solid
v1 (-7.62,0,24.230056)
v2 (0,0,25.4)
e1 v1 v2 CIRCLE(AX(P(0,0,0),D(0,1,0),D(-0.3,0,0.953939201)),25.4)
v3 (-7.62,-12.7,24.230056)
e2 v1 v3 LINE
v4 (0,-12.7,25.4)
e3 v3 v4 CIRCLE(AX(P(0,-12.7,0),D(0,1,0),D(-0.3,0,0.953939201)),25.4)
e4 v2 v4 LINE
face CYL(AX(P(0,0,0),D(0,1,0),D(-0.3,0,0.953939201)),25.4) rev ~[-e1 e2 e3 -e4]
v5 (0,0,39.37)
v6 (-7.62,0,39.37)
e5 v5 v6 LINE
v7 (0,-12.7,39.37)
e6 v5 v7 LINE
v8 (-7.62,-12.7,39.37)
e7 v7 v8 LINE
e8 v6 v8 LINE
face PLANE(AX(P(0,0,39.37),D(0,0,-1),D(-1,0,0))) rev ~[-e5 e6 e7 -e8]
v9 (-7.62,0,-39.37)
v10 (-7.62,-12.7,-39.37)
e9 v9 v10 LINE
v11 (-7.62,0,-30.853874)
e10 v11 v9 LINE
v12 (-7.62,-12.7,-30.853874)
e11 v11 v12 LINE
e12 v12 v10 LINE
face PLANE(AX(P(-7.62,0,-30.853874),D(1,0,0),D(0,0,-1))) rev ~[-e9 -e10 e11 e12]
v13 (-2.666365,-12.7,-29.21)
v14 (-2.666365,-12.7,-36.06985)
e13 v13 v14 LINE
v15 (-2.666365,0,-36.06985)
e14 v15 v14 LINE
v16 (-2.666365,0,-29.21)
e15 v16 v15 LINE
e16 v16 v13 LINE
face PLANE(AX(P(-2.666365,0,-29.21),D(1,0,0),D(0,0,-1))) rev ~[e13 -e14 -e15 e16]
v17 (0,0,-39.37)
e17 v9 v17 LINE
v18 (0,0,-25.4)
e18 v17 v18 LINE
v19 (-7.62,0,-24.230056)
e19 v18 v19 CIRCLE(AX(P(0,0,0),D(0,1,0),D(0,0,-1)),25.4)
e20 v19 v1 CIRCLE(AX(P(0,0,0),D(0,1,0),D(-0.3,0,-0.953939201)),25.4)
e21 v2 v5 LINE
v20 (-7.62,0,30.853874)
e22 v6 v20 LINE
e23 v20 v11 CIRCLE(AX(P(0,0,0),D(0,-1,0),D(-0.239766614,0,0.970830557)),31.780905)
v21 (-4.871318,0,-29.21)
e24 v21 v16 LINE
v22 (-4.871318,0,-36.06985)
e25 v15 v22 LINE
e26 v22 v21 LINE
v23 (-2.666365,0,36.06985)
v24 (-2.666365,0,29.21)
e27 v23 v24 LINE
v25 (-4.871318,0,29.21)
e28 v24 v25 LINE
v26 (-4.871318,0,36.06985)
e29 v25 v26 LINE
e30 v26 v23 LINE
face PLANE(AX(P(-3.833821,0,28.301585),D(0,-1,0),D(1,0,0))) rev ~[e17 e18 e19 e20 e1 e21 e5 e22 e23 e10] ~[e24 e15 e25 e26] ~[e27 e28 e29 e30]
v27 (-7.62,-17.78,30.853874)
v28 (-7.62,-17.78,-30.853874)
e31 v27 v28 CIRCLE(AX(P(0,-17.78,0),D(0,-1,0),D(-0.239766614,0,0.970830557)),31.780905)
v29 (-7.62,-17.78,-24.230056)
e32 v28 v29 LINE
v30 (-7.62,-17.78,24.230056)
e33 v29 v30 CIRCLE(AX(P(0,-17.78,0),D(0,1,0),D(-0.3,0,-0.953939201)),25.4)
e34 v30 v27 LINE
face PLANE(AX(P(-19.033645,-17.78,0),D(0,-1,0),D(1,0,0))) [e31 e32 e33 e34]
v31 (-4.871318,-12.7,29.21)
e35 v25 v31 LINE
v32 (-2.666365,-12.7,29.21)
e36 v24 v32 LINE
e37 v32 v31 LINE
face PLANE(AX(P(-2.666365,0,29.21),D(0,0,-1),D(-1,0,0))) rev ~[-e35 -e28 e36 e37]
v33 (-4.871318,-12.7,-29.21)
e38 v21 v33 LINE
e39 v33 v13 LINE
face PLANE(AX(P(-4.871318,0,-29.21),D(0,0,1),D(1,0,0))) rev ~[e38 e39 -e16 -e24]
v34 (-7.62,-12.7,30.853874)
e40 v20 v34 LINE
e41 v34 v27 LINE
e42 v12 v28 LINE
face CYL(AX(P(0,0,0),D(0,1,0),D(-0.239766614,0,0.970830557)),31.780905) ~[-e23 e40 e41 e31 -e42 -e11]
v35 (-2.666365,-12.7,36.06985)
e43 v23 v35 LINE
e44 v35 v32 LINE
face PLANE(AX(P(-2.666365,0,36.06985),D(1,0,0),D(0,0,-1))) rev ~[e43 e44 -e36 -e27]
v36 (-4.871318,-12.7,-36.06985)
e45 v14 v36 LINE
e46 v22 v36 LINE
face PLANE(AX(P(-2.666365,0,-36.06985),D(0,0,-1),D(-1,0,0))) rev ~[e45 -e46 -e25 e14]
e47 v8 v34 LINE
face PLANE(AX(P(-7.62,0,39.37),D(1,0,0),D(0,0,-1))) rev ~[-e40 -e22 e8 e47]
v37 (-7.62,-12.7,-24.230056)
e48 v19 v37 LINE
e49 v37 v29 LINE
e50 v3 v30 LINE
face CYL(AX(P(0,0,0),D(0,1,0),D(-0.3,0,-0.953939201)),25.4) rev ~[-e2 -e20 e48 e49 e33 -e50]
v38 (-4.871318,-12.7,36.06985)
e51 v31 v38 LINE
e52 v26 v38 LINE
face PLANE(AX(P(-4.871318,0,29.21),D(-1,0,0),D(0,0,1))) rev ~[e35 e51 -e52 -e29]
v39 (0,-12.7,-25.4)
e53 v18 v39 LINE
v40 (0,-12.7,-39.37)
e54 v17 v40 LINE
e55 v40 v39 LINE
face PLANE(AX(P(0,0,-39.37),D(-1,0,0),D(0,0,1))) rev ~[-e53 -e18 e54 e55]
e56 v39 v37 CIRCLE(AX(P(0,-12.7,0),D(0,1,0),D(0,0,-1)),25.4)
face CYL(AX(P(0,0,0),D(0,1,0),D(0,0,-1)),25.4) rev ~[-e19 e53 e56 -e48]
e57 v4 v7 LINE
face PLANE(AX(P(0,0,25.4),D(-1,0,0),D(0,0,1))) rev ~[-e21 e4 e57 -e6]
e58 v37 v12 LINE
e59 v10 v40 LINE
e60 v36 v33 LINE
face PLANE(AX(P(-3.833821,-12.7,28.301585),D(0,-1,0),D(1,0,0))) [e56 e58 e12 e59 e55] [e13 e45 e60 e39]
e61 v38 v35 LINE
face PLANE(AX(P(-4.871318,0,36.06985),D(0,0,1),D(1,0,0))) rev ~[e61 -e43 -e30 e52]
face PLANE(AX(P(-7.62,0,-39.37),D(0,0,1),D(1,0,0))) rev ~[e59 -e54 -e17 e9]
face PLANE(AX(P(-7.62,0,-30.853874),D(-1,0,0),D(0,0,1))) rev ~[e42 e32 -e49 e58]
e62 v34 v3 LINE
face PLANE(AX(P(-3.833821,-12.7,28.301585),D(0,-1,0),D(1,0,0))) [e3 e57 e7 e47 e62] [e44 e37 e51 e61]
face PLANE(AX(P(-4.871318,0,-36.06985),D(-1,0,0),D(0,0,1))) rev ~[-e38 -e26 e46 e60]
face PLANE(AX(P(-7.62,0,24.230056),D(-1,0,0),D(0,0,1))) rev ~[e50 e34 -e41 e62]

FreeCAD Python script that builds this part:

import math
import FreeCAD as App
import Part
import Sketcher
Q = App.Units.Quantity

doc = App.newDocument("Part")
body = doc.addObject("PartDesign::Body", "Body")

# Sketch on XZ plane
sketch1 = body.newObject("Sketcher::SketchObject", "Sketch")
sketch1.AttachmentSupport = (doc.getObject("XZ_Plane"), [""])
sketch1.MapMode = "FlatFace"
sketch1.addGeometry(Part.LineSegment(App.Vector(-7.6, 39.4, 0), App.Vector(-7.6, 30.9, 0)), False)
sketch1.addGeometry(Part.ArcOfCircle(Part.Circle(App.Vector(0, 0, 0), App.Vector(0, 0, 1), 31.8), math.radians(104), math.radians(256)), False)
sketch1.addGeometry(Part.LineSegment(App.Vector(-7.6, -30.9, 0), App.Vector(-7.6, -39.4, 0)), False)
sketch1.addGeometry(Part.LineSegment(App.Vector(-7.6, -39.4, 0), App.Vector(0, -39.4, 0)), False)
sketch1.addGeometry(Part.LineSegment(App.Vector(0, -39.4, 0), App.Vector(0, -25.4, 0)), False)
sketch1.addGeometry(Part.ArcOfCircle(Part.Circle(App.Vector(0, 0, 0), App.Vector(0, 0, 1), 25.4), math.radians(-107.46), math.radians(-90)), False)
sketch1.addGeometry(Part.ArcOfCircle(Part.Circle(App.Vector(0, 0, 0), App.Vector(0, 0, 1), 25.4), math.radians(107), math.radians(253)), False)
sketch1.addGeometry(Part.ArcOfCircle(Part.Circle(App.Vector(0, 0, 0), App.Vector(0, 0, 1), 25.4), math.radians(90), math.radians(107.46)), False)
sketch1.addGeometry(Part.LineSegment(App.Vector(0, 25.4, 0), App.Vector(0, 39.4, 0)), False)
sketch1.addGeometry(Part.LineSegment(App.Vector(0, 39.4, 0), App.Vector(-7.6, 39.4, 0)), False)
sketch1.addGeometry(Part.LineSegment(App.Vector(-2.7, 29.2, 0), App.Vector(-4.9, 29.2, 0)), False)
sketch1.addGeometry(Part.LineSegment(App.Vector(-4.9, 29.2, 0), App.Vector(-4.9, 36.1, 0)), False)
sketch1.addGeometry(Part.LineSegment(App.Vector(-4.9, 36.1, 0), App.Vector(-2.7, 36.1, 0)), False)
sketch1.addGeometry(Part.LineSegment(App.Vector(-2.7, 36.1, 0), App.Vector(-2.7, 29.2, 0)), False)
sketch1.addGeometry(Part.LineSegment(App.Vector(-2.7, -36.1, 0), App.Vector(-4.9, -36.1, 0)), False)
sketch1.addGeometry(Part.LineSegment(App.Vector(-4.9, -36.1, 0), App.Vector(-4.9, -29.2, 0)), False)
sketch1.addGeometry(Part.LineSegment(App.Vector(-4.9, -29.2, 0), App.Vector(-2.7, -29.2, 0)), False)
sketch1.addGeometry(Part.LineSegment(App.Vector(-2.7, -29.2, 0), App.Vector(-2.7, -36.1, 0)), False)
sketch1.addConstraint(Sketcher.Constraint("Coincident", 0, 2, 1, 1))
sketch1.addConstraint(Sketcher.Constraint("Coincident", 1, 2, 2, 1))
sketch1.addConstraint(Sketcher.Constraint("Coincident", 2, 2, 3, 1))
sketch1.addConstraint(Sketcher.Constraint("Coincident", 3, 2, 4, 1))
sketch1.addConstraint(Sketcher.Constraint("Coincident", 4, 2, 5, 2))
sketch1.addConstraint(Sketcher.Constraint("Tangent", 5, 1, 6, 2))
sketch1.addConstraint(Sketcher.Constraint("Tangent", 6, 1, 7, 2))
sketch1.addConstraint(Sketcher.Constraint("Coincident", 7, 1, 8, 1))
sketch1.addConstraint(Sketcher.Constraint("Coincident", 8, 2, 9, 1))
sketch1.addConstraint(Sketcher.Constraint("Coincident", 9, 2, 0, 1))
sketch1.addConstraint(Sketcher.Constraint("Coincident", 10, 2, 11, 1))
sketch1.addConstraint(Sketcher.Constraint("Coincident", 11, 2, 12, 1))
sketch1.addConstraint(Sketcher.Constraint("Coincident", 12, 2, 13, 1))
sketch1.addConstraint(Sketcher.Constraint("Coincident", 13, 2, 10, 1))
sketch1.addConstraint(Sketcher.Constraint("Coincident", 14, 2, 15, 1))
sketch1.addConstraint(Sketcher.Constraint("Coincident", 15, 2, 16, 1))
sketch1.addConstraint(Sketcher.Constraint("Coincident", 16, 2, 17, 1))
sketch1.addConstraint(Sketcher.Constraint("Coincident", 17, 2, 14, 1))
sketch1.addConstraint(Sketcher.Constraint("Vertical", 0))
sketch1.addConstraint(Sketcher.Constraint("Vertical", 2))
sketch1.addConstraint(Sketcher.Constraint("Horizontal", 3))
sketch1.addConstraint(Sketcher.Constraint("Vertical", 4))
sketch1.addConstraint(Sketcher.Constraint("Vertical", 8))
sketch1.addConstraint(Sketcher.Constraint("Horizontal", 9))
sketch1.addConstraint(Sketcher.Constraint("Horizontal", 10))
sketch1.addConstraint(Sketcher.Constraint("Vertical", 11))
sketch1.addConstraint(Sketcher.Constraint("Horizontal", 12))
sketch1.addConstraint(Sketcher.Constraint("Vertical", 13))
sketch1.addConstraint(Sketcher.Constraint("Horizontal", 14))
sketch1.addConstraint(Sketcher.Constraint("Vertical", 15))
sketch1.addConstraint(Sketcher.Constraint("Horizontal", 16))
sketch1.addConstraint(Sketcher.Constraint("Vertical", 17))
sketch1.addConstraint(Sketcher.Constraint("Coincident", 1, 3, -1, 1))
sketch1.addConstraint(Sketcher.Constraint("Coincident", 5, 3, -1, 1))
sketch1.addConstraint(Sketcher.Constraint("Coincident", 7, 3, -1, 1))
sketch1.addConstraint(Sketcher.Constraint("Symmetric", 3, 2, 8, 2, -1, 1))
sketch1.addConstraint(Sketcher.Constraint("Symmetric", 11, 2, 14, 2, -1))
sketch1.addConstraint(Sketcher.Constraint("Symmetric", 13, 2, 16, 2, -1))
sketch1.addConstraint(Sketcher.Constraint("PointOnObject", 3, 2, -2))
sketch1.addConstraint(Sketcher.Constraint("Vertical", 0, 2, 1, 2))
sketch1.addConstraint(Sketcher.Constraint("Vertical", 2, 2, 5, 1))
sketch1.addConstraint(Sketcher.Constraint("Vertical", 5, 1, 6, 1))
sketch1.addConstraint(Sketcher.Constraint("Radius", 5, Q("1 in")))
sketch1.addConstraint(Sketcher.Constraint("DistanceX", 3, 1, 3, 2, Q("0.3 in")))
sketch1.addConstraint(Sketcher.Constraint("DistanceY", 4, 1, 4, 2, Q("0.55 in")))
sketch1.addConstraint(Sketcher.Constraint("DistanceY", 10, 2, 9, 2, Q("0.4 in")))
sketch1.addConstraint(Sketcher.Constraint("Radius", 1, 31.780905))
sketch1.addConstraint(Sketcher.Constraint("DistanceY", 11, 1, 11, 2, 6.85985))
sketch1.addConstraint(Sketcher.Constraint("DistanceX", 10, 2, 10, 1, 2.204953))
sketch1.addConstraint(Sketcher.Constraint("DistanceX", 10, 2, -1, 1, 4.871318))
pad1 = body.newObject("PartDesign::Pad", "Pad")
pad1.Profile = sketch1
pad1.Length = Q("0.5 in")

# Sketch on XZ plane
sketch2 = body.newObject("Sketcher::SketchObject", "Sketch001")
sketch2.AttachmentSupport = (doc.getObject("XZ_Plane"), [""])
sketch2.MapMode = "FlatFace"
sketch2.addGeometry(Part.ArcOfCircle(Part.Circle(App.Vector(0, 0, 0), App.Vector(0, 0, 1), 25), math.radians(107), math.radians(253)), False)
sketch2.addGeometry(Part.LineSegment(App.Vector(-8, 24, 0), App.Vector(-8, 31, 0)), False)
sketch2.addGeometry(Part.ArcOfCircle(Part.Circle(App.Vector(0, 0, 0), App.Vector(0, 0, 1), 32), math.radians(104), math.radians(256)), False)
sketch2.addGeometry(Part.LineSegment(App.Vector(-8, -31, 0), App.Vector(-8, -24, 0)), False)
sketch2.addConstraint(Sketcher.Constraint("Coincident", 0, 1, 1, 1))
sketch2.addConstraint(Sketcher.Constraint("Coincident", 1, 2, 2, 1))
sketch2.addConstraint(Sketcher.Constraint("Coincident", 2, 2, 3, 1))
sketch2.addConstraint(Sketcher.Constraint("Coincident", 3, 2, 0, 2))
sketch2.addConstraint(Sketcher.Constraint("Vertical", 1))
sketch2.addConstraint(Sketcher.Constraint("Vertical", 3))
sketch2.addConstraint(Sketcher.Constraint("Coincident", 0, 3, -1, 1))
sketch2.addConstraint(Sketcher.Constraint("Coincident", 2, 3, -1, 1))
sketch2.addConstraint(Sketcher.Constraint("Vertical", 1, 2, 2, 2))
sketch2.addConstraint(Sketcher.Constraint("Radius", 0, Q("1 in")))
sketch2.addConstraint(Sketcher.Constraint("DistanceX", 0, 1, -1, 1, Q("0.3 in")))
sketch2.addConstraint(Sketcher.Constraint("Radius", 2, 31.780905))
pad2 = body.newObject("PartDesign::Pad", "Pad001")
pad2.Profile = sketch2
pad2.Length = Q("0.7 in")

doc.recompute()
